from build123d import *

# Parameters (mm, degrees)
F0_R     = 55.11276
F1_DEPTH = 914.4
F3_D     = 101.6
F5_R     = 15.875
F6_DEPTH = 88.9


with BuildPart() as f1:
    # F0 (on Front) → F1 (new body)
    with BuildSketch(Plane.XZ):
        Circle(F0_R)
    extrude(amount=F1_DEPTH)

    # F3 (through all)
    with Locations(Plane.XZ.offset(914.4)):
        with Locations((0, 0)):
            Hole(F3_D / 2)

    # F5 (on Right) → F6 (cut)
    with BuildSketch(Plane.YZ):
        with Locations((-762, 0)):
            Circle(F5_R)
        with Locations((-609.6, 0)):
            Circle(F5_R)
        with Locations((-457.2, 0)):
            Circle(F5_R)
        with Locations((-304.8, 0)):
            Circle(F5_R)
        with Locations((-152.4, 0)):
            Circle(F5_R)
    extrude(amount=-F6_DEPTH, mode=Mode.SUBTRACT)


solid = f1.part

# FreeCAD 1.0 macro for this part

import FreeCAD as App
import Part
import Sketcher
from FreeCAD import Vector
Q = App.Units.Quantity

doc = App.newDocument("Part")
body = doc.addObject("PartDesign::Body", "Body")

# Sketch on XZ plane
sketch1 = body.newObject("Sketcher::SketchObject", "Sketch")
sketch1.AttachmentSupport = (doc.getObject("XZ_Plane"), [""])
sketch1.MapMode = "FlatFace"
sketch1.addGeometry(Part.Circle(Vector(0, 0, 0), Vector(0, 0, 1), 55.11276), False)
sketch1.addConstraint(Sketcher.Constraint("Coincident", 0, 3, -1, 1))
sketch1.addConstraint(Sketcher.Constraint("Diameter", 0, Q("110.22552 mm")))
pad1 = body.newObject("PartDesign::Pad", "Pad")
pad1.Profile = sketch1
pad1.Length = Q("36 in")

# Sketch on XZ plane
sketch2 = body.newObject("Sketcher::SketchObject", "Sketch001")
sketch2.AttachmentSupport = (doc.getObject("XZ_Plane"), [""])
sketch2.MapMode = "FlatFace"
sketch2.AttachmentOffset = App.Placement(Vector(0, 0, 36 * 25.4), App.Rotation())
sketch2.addGeometry(Part.Circle(Vector(0, 0, 0), Vector(0, 0, 1), 50.8), False)
sketch2.addConstraint(Sketcher.Constraint("Coincident", 0, 3, -1, 1))
sketch2.addConstraint(Sketcher.Constraint("Diameter", 0, Q("4 in")))
doc.recompute()
hole = body.newObject("PartDesign::Hole", "Hole")
hole.Profile = sketch2
hole.ThreadType = "None"
hole.Diameter = Q("4 in")
hole.DepthType = "ThroughAll"

# Sketch on YZ plane
sketch3 = body.newObject("Sketcher::SketchObject", "Sketch002")
sketch3.AttachmentSupport = (doc.getObject("YZ_Plane"), [""])
sketch3.MapMode = "FlatFace"
sketch3.addGeometry(Part.Circle(Vector(-762, 0, 0), Vector(0, 0, 1), 15.875), False)
sketch3.addGeometry(Part.Circle(Vector(-609.6, 0, 0), Vector(0, 0, 1), 15.875), False)
sketch3.addGeometry(Part.Circle(Vector(-457.2, 0, 0), Vector(0, 0, 1), 15.875), False)
sketch3.addGeometry(Part.Circle(Vector(-304.8, 0, 0), Vector(0, 0, 1), 15.875), False)
sketch3.addGeometry(Part.Circle(Vector(-152.4, 0, 0), Vector(0, 0, 1), 15.875), False)
sketch3.addConstraint(Sketcher.Constraint("Equal", 0, 1))
sketch3.addConstraint(Sketcher.Constraint("Equal", 1, 2))
sketch3.addConstraint(Sketcher.Constraint("Equal", 2, 3))
sketch3.addConstraint(Sketcher.Constraint("Equal", 3, 4))
sketch3.addConstraint(Sketcher.Constraint("PointOnObject", 0, 3, -1))
sketch3.addConstraint(Sketcher.Constraint("PointOnObject", 1, 3, -1))
sketch3.addConstraint(Sketcher.Constraint("PointOnObject", 2, 3, -1))
sketch3.addConstraint(Sketcher.Constraint("PointOnObject", 3, 3, -1))
sketch3.addConstraint(Sketcher.Constraint("PointOnObject", 4, 3, -1))
sketch3.addConstraint(Sketcher.Constraint("Diameter", 0, Q("1.25 in")))
sketch3.addConstraint(Sketcher.Constraint("DistanceX", 0, 3, -1, 1, Q("30 in")))
sketch3.addConstraint(Sketcher.Constraint("DistanceX", 1, 3, -1, 1, Q("24 in")))
sketch3.addConstraint(Sketcher.Constraint("DistanceX", 2, 3, -1, 1, Q("18 in")))
sketch3.addConstraint(Sketcher.Constraint("DistanceX", 3, 3, -1, 1, Q("12 in")))
sketch3.addConstraint(Sketcher.Constraint("DistanceX", 4, 3, -1, 1, Q("6 in")))
pocket1 = body.newObject("PartDesign::Pocket", "Pocket")
pocket1.Profile = sketch3
pocket1.Length = Q("3.5 in")

doc.recompute()
